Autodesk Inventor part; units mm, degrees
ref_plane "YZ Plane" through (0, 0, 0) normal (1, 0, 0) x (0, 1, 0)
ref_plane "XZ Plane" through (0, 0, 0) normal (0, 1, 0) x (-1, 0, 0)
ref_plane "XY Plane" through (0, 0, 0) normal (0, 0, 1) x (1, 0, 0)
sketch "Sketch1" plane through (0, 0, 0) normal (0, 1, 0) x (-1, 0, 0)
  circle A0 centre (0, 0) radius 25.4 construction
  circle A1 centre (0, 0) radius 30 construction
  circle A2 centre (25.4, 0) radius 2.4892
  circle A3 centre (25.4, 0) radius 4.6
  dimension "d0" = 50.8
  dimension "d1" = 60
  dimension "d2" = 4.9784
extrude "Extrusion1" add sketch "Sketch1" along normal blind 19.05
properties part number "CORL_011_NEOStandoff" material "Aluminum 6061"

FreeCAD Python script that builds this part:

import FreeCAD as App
import Part
import Sketcher
from FreeCAD import Vector
Q = App.Units.Quantity

doc = App.newDocument("Part")
body = doc.addObject("PartDesign::Body", "Body")

sketch1 = doc.addObject("Sketcher::SketchObject", "Sketch")
body.addObject(sketch1)
sketch1.AttachmentSupport = (doc.XZ_Plane, [""])
sketch1.MapMode = "FlatFace"
sketch1.addGeometry([
    Part.Circle(Vector(-25.4, 0, 0), Vector(0, 0, 1), 4.6),
    Part.Circle(Vector(-25.4, 0, 0), Vector(0, 0, 1), 2.4892),
], False)
sketch1.addConstraint([
    Sketcher.Constraint("Coincident", 1, 3, 0, 3),
    Sketcher.Constraint("PointOnObject", 0, 3, -1),
    Sketcher.Constraint("Diameter", 1, Q("0.196 in")),
    Sketcher.Constraint("DistanceX", 0, 3, -1, 1, Q("1 in")),
    Sketcher.Constraint("Diameter", 0, Q("0.3622 in")),
])
pad1 = doc.addObject("PartDesign::Pad", "Pad")
body.addObject(pad1)
pad1.Profile = sketch1
pad1.Length = Q("0.75 in")
pad1.Reversed = True

doc.recompute()
